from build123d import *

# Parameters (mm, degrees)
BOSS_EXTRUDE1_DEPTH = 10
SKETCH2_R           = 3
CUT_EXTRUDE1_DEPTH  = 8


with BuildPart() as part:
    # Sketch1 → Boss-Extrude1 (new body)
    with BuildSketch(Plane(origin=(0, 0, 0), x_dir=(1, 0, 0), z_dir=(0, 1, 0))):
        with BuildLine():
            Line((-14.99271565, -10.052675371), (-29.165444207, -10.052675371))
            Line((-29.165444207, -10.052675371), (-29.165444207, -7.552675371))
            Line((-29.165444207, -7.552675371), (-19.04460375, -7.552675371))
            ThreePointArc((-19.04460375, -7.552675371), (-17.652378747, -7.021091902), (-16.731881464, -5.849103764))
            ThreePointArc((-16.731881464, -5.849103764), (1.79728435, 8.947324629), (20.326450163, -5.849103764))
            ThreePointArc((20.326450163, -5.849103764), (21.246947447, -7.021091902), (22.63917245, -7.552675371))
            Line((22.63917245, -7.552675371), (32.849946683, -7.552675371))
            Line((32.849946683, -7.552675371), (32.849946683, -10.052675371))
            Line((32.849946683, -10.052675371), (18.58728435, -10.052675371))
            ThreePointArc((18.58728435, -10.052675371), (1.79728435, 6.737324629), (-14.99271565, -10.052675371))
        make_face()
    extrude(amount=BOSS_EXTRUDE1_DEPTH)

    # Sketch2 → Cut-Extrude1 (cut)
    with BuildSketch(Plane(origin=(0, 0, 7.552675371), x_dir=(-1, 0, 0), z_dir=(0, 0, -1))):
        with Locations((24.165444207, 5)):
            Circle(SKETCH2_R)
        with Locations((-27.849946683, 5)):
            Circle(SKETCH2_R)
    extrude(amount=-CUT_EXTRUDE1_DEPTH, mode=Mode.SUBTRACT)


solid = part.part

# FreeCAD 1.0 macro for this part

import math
import FreeCAD as App
import Part
import Sketcher
Q = App.Units.Quantity

doc = App.newDocument("Part")
params = doc.addObject("Spreadsheet::Sheet", "Params")
for row, (alias, value) in enumerate([
    ("sketch1_radius", "19 mm"),
    ("sketch1_radius2", "16.79 mm"),
    ("sketch1_height", "2.5 mm"),
    ("pad1_length", "10 mm"),
    ("sketch2_diameter", "6 mm"),
    ("pocket1_length", "8 mm"),
], start=1):
    params.set(f"A{row}", alias)
    params.set(f"B{row}", "=" + value)
    params.setAlias(f"B{row}", alias)

body = doc.addObject("PartDesign::Body", "Body")

# Sketch on XZ plane
sketch1 = doc.addObject("Sketcher::SketchObject", "Sketch")
body.addObject(sketch1)
sketch1.AttachmentSupport = (doc.XZ_Plane, [""])
sketch1.MapMode = "FlatFace"
sketch1.addGeometry([
    Part.LineSegment(App.Vector(-29.2, 10.1, 0), App.Vector(-15, 10.1, 0)),  # 0
    Part.ArcOfCircle(Part.Circle(App.Vector(1.8, 10.1, 0), App.Vector(0, 0, 1), 16.8), math.radians(180), math.radians(360)),  # 1
    Part.LineSegment(App.Vector(18.6, 10.1, 0), App.Vector(32.8, 10.1, 0)),  # 2
    Part.LineSegment(App.Vector(32.8, 10.1, 0), App.Vector(32.8, 7.6, 0)),  # 3
    Part.LineSegment(App.Vector(32.8, 7.6, 0), App.Vector(22.6, 7.6, 0)),  # 4
    Part.ArcOfCircle(Part.Circle(App.Vector(22.9, 4.8, 0), App.Vector(0, 0, 1), 2.8), math.radians(95), math.radians(157)),  # 5
    Part.ArcOfCircle(Part.Circle(App.Vector(1.8, 10.1, 0), App.Vector(0, 0, 1), 19), math.radians(-167), math.radians(-13)),  # 6
    Part.ArcOfCircle(Part.Circle(App.Vector(-19.3, 4.8, 0), App.Vector(0, 0, 1), 2.8), math.radians(23), math.radians(85)),  # 7
    Part.LineSegment(App.Vector(-19, 7.6, 0), App.Vector(-29.2, 7.6, 0)),  # 8
    Part.LineSegment(App.Vector(-29.2, 7.6, 0), App.Vector(-29.2, 10.1, 0)),  # 9
], False)
sketch1.addConstraint([
    Sketcher.Constraint("Coincident", 0, 2, 1, 1),
    Sketcher.Constraint("Coincident", 1, 2, 2, 1),
    Sketcher.Constraint("Coincident", 2, 2, 3, 1),
    Sketcher.Constraint("Coincident", 3, 2, 4, 1),
    Sketcher.Constraint("Coincident", 4, 2, 5, 1),
    Sketcher.Constraint("Coincident", 5, 2, 6, 2),
    Sketcher.Constraint("Coincident", 6, 1, 7, 1),
    Sketcher.Constraint("Coincident", 7, 2, 8, 1),
    Sketcher.Constraint("Coincident", 8, 2, 9, 1),
    Sketcher.Constraint("Coincident", 9, 2, 0, 1),
    Sketcher.Constraint("Horizontal", 0),
    Sketcher.Constraint("Horizontal", 2),
    Sketcher.Constraint("Vertical", 3),
    Sketcher.Constraint("Horizontal", 4),
    Sketcher.Constraint("Horizontal", 8),
    Sketcher.Constraint("Vertical", 9),
    Sketcher.Constraint("Coincident", 6, 3, 1, 3),
    Sketcher.Constraint("Equal", 5, 7),
    Sketcher.Constraint("Horizontal", 5, 3, 7, 3),
    Sketcher.Constraint("Horizontal", 6, 3, 0, 2),
    Sketcher.Constraint("Horizontal", 0, 2, 1, 2),
    Sketcher.Constraint("Horizontal", 5, 2, 6, 1),
    Sketcher.Constraint("Horizontal", 4, 2, 7, 2),
    Sketcher.Constraint("Radius", 6, Q("19 mm")),
    Sketcher.Constraint("Radius", 1, Q("16.79 mm")),
    Sketcher.Constraint("DistanceY", 3, 2, 3, 1, Q("2.5 mm")),
    Sketcher.Constraint("Radius", 5, Q("2.792179 mm")),
    Sketcher.Constraint("DistanceX", 0, 1, 0, 2, Q("14.172729 mm")),
    Sketcher.Constraint("DistanceX", 8, 2, 8, 1, Q("10.12084 mm")),
    Sketcher.Constraint("DistanceX", 2, 1, 2, 2, Q("14.262662 mm")),
    Sketcher.Constraint("DistanceY", -1, 1, 5, 3, Q("4.772981 mm")),
    Sketcher.Constraint("DistanceX", -1, 1, 5, 2, Q("20.32645 mm")),
    Sketcher.Constraint("DistanceX", 6, 1, -1, 1, Q("16.731881 mm")),
])
sketch1.setExpression("Constraints[23]", "Params.sketch1_radius")
sketch1.setExpression("Constraints[24]", "Params.sketch1_radius2")
sketch1.setExpression("Constraints[25]", "Params.sketch1_height")
pad1 = doc.addObject("PartDesign::Pad", "Pad")
body.addObject(pad1)
pad1.Profile = sketch1
pad1.setExpression("Length", "Params.pad1_length")
pad1.Reversed = True

# Sketch on XY plane
sketch2 = doc.addObject("Sketcher::SketchObject", "Sketch001")
body.addObject(sketch2)
sketch2.AttachmentSupport = (doc.XY_Plane, [""])
sketch2.MapMode = "FlatFace"
sketch2.AttachmentOffset = App.Placement(App.Vector(0, 0, 7.552675), App.Rotation())
sketch2.addGeometry([
    Part.Circle(App.Vector(-24.2, 5, 0), App.Vector(0, 0, 1), 3),
    Part.Circle(App.Vector(27.8, 5, 0), App.Vector(0, 0, 1), 3),
], False)
sketch2.addConstraint([
    Sketcher.Constraint("Equal", 0, 1),
    Sketcher.Constraint("Horizontal", 0, 3, 1, 3),
    Sketcher.Constraint("Diameter", 0, Q("6 mm")),
    Sketcher.Constraint("DistanceY", -1, 1, 0, 3, Q("5 mm")),
    Sketcher.Constraint("DistanceX", 0, 3, 1, 3, Q("52.015391 mm")),
    Sketcher.Constraint("DistanceX", 0, 3, -1, 1, Q("24.165444 mm")),
])
sketch2.setExpression("Constraints[2]", "Params.sketch2_diameter")
pocket1 = doc.addObject("PartDesign::Pocket", "Pocket")
body.addObject(pocket1)
pocket1.Profile = sketch2
pocket1.setExpression("Length", "Params.pocket1_length")
pocket1.Reversed = True

doc.recompute()
